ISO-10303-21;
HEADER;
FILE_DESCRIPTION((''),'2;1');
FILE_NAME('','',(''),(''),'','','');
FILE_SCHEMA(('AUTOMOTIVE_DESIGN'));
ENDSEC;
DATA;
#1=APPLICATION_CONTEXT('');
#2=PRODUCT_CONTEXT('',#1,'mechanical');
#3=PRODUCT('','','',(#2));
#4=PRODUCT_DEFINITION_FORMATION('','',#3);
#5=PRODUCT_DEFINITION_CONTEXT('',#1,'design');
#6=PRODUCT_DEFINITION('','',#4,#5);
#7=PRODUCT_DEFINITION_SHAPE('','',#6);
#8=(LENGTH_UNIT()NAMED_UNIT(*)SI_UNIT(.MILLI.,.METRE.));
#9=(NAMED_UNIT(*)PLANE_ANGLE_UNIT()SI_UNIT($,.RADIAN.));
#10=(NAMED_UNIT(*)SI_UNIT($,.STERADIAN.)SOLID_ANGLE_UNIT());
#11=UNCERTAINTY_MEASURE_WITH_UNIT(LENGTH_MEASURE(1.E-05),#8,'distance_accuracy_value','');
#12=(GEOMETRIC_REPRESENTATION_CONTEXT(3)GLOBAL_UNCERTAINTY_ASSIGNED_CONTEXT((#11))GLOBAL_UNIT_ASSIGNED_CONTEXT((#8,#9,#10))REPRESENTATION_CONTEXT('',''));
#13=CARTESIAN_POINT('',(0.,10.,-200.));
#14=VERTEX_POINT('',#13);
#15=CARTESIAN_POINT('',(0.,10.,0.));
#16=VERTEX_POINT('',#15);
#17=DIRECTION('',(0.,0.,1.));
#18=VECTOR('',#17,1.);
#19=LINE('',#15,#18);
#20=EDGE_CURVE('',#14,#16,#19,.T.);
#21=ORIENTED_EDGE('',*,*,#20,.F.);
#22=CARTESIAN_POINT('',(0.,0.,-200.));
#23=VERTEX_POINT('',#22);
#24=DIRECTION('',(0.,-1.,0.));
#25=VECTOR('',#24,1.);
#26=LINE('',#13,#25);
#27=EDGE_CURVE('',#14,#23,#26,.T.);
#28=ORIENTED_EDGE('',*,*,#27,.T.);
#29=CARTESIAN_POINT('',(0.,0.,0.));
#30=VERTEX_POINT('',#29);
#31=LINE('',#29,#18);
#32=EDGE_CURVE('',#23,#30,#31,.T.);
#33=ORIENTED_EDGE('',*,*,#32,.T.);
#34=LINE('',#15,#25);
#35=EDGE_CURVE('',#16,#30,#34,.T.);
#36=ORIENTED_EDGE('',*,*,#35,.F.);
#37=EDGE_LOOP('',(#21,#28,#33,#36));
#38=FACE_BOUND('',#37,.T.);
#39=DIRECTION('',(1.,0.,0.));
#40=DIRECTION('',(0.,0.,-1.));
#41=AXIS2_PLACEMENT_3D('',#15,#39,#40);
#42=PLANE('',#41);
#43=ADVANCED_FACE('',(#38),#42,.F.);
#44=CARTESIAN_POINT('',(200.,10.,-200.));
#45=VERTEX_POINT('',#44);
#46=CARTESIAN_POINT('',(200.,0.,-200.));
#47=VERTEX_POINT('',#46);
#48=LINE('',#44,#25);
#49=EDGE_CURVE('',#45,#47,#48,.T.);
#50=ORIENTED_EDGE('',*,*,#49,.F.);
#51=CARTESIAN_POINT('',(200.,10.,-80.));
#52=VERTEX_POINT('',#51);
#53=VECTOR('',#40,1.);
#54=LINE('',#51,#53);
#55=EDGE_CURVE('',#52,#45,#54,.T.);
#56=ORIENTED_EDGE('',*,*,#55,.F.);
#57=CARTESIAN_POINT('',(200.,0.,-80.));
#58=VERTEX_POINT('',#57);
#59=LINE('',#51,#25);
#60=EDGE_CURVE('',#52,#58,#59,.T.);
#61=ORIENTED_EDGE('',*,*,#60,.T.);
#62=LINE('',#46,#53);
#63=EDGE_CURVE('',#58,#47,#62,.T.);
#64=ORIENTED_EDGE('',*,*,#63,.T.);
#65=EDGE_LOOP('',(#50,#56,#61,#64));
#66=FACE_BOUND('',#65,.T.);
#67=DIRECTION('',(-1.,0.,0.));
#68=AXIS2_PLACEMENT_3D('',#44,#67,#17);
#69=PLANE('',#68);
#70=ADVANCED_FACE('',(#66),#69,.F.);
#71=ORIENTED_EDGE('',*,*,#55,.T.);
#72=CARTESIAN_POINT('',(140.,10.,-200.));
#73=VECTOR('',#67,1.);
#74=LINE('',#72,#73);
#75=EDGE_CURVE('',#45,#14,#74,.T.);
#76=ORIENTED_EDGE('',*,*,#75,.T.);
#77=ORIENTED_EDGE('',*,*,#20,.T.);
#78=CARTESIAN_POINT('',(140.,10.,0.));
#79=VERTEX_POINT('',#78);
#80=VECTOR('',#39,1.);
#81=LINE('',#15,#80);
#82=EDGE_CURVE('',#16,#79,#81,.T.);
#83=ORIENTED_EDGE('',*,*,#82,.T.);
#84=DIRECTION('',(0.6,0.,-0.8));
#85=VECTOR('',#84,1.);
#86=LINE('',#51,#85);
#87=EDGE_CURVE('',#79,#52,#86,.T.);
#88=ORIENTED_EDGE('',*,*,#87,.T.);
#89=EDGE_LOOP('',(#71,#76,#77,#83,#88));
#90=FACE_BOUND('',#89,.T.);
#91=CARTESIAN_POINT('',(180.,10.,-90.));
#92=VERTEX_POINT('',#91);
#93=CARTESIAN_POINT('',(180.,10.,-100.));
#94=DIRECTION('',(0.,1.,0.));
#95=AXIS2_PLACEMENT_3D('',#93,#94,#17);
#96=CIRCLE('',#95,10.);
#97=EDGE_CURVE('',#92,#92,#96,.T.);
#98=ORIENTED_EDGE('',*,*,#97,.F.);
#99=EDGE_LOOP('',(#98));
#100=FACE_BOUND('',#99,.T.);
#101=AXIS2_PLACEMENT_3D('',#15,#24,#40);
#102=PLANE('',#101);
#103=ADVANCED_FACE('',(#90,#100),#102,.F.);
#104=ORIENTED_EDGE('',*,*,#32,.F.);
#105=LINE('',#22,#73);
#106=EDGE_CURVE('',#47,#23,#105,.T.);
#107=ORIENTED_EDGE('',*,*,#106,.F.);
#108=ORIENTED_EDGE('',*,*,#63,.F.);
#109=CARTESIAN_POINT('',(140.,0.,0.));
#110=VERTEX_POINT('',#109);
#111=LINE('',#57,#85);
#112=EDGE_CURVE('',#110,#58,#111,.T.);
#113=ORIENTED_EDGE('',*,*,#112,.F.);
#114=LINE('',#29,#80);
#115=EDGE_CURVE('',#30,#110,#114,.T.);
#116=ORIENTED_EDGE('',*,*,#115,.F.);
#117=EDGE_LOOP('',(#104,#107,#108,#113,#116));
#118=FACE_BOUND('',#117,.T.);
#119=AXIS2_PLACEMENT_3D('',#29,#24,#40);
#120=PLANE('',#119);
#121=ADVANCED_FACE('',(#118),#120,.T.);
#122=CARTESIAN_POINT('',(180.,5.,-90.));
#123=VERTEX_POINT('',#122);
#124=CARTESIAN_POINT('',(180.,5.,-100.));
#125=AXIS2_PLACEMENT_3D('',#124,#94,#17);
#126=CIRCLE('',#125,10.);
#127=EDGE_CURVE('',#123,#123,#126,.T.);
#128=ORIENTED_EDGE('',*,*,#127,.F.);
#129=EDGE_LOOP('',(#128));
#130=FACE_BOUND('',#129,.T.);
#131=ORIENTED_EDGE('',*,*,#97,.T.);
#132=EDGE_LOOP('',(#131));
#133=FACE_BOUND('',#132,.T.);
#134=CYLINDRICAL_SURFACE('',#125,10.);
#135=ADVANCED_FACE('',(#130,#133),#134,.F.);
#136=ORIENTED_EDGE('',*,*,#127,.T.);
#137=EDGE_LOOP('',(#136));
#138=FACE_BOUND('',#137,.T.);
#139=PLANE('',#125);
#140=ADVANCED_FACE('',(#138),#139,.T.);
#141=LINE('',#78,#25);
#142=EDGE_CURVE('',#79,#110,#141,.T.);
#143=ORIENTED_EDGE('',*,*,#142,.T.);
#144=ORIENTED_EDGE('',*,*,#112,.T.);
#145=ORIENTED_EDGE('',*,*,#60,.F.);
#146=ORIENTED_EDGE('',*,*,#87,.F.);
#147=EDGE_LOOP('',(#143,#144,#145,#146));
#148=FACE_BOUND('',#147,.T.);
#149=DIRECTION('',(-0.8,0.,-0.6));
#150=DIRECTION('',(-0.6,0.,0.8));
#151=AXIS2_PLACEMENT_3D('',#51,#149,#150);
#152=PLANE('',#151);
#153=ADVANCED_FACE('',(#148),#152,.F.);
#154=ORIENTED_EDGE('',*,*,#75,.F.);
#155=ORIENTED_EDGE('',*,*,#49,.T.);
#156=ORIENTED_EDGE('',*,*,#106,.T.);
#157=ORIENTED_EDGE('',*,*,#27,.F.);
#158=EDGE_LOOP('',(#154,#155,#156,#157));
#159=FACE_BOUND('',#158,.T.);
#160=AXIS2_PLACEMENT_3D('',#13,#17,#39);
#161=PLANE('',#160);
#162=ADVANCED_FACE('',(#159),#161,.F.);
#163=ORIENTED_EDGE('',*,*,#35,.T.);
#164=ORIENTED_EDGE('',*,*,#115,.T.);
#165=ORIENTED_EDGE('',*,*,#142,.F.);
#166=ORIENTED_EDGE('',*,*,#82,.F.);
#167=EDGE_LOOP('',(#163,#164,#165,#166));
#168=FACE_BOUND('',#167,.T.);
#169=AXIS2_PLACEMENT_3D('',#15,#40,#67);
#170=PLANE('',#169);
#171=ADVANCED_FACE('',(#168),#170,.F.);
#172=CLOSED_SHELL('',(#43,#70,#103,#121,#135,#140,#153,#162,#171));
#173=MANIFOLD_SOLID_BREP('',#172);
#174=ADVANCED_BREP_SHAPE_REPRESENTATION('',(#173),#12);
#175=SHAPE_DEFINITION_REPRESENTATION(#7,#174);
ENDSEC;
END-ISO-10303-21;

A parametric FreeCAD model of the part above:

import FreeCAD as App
import Part
import Sketcher

V = App.Vector

doc = App.newDocument("Part")
body = doc.addObject("PartDesign::Body", "Body")

# Sketch on XZ plane
sketch1 = body.newObject("Sketcher::SketchObject", "Sketch")
sketch1.AttachmentSupport = (doc.getObject("XZ_Plane"), [""])
sketch1.MapMode = "FlatFace"
sketch1.addGeometry([
    Part.LineSegment(V(0, 0, 0), V(140, 0, 0)),  # 0
    Part.LineSegment(V(140, 0, 0), V(200, -80, 0)),  # 1
    Part.LineSegment(V(200, -80, 0), V(200, -200, 0)),  # 2
    Part.LineSegment(V(200, -200, 0), V(0, -200, 0)),  # 3
    Part.LineSegment(V(0, -200, 0), V(0, 0, 0)),  # 4
], False)
sketch1.addConstraint([
    Sketcher.Constraint("Coincident", 0, 2, 1, 1),
    Sketcher.Constraint("Coincident", 1, 2, 2, 1),
    Sketcher.Constraint("Coincident", 2, 2, 3, 1),
    Sketcher.Constraint("Coincident", 3, 2, 4, 1),
    Sketcher.Constraint("Coincident", 4, 2, 0, 1),
    Sketcher.Constraint("Horizontal", 0),
    Sketcher.Constraint("Vertical", 2),
    Sketcher.Constraint("Horizontal", 3),
    Sketcher.Constraint("Vertical", 4),
    Sketcher.Constraint("Coincident", 4, 2, -1, 1),
    Sketcher.Constraint("Equal", 3, 4),
    Sketcher.Constraint("DistanceX", 0, 1, 0, 2, 140.0),
    Sketcher.Constraint("DistanceX", 3, 2, 3, 1, 200.0),
    Sketcher.Constraint("DistanceY", 2, 2, 2, 1, 120.0),
])
pad1 = body.newObject("PartDesign::Pad", "Pad")
pad1.Profile = sketch1
pad1.Length = 10
pad1.Reversed = True

# Sketch on XZ plane
sketch2 = body.newObject("Sketcher::SketchObject", "Sketch001")
sketch2.AttachmentSupport = (doc.getObject("XZ_Plane"), [""])
sketch2.MapMode = "FlatFace"
sketch2.AttachmentOffset = App.Placement(V(0, 0, -10), App.Rotation())
sketch2.addGeometry(Part.Circle(V(180, -100, 0), V(0, 0, 1), 10), False)
sketch2.addConstraint([
    Sketcher.Constraint("Diameter", 0, 20.0),
    Sketcher.Constraint("DistanceX", -1, 1, 0, 3, 180.0),
    Sketcher.Constraint("DistanceY", 0, 3, -1, 1, 100.0),
])
pocket1 = body.newObject("PartDesign::Pocket", "Pocket")
pocket1.Profile = sketch2
pocket1.Length = 5
pocket1.Reversed = True

doc.recompute()
